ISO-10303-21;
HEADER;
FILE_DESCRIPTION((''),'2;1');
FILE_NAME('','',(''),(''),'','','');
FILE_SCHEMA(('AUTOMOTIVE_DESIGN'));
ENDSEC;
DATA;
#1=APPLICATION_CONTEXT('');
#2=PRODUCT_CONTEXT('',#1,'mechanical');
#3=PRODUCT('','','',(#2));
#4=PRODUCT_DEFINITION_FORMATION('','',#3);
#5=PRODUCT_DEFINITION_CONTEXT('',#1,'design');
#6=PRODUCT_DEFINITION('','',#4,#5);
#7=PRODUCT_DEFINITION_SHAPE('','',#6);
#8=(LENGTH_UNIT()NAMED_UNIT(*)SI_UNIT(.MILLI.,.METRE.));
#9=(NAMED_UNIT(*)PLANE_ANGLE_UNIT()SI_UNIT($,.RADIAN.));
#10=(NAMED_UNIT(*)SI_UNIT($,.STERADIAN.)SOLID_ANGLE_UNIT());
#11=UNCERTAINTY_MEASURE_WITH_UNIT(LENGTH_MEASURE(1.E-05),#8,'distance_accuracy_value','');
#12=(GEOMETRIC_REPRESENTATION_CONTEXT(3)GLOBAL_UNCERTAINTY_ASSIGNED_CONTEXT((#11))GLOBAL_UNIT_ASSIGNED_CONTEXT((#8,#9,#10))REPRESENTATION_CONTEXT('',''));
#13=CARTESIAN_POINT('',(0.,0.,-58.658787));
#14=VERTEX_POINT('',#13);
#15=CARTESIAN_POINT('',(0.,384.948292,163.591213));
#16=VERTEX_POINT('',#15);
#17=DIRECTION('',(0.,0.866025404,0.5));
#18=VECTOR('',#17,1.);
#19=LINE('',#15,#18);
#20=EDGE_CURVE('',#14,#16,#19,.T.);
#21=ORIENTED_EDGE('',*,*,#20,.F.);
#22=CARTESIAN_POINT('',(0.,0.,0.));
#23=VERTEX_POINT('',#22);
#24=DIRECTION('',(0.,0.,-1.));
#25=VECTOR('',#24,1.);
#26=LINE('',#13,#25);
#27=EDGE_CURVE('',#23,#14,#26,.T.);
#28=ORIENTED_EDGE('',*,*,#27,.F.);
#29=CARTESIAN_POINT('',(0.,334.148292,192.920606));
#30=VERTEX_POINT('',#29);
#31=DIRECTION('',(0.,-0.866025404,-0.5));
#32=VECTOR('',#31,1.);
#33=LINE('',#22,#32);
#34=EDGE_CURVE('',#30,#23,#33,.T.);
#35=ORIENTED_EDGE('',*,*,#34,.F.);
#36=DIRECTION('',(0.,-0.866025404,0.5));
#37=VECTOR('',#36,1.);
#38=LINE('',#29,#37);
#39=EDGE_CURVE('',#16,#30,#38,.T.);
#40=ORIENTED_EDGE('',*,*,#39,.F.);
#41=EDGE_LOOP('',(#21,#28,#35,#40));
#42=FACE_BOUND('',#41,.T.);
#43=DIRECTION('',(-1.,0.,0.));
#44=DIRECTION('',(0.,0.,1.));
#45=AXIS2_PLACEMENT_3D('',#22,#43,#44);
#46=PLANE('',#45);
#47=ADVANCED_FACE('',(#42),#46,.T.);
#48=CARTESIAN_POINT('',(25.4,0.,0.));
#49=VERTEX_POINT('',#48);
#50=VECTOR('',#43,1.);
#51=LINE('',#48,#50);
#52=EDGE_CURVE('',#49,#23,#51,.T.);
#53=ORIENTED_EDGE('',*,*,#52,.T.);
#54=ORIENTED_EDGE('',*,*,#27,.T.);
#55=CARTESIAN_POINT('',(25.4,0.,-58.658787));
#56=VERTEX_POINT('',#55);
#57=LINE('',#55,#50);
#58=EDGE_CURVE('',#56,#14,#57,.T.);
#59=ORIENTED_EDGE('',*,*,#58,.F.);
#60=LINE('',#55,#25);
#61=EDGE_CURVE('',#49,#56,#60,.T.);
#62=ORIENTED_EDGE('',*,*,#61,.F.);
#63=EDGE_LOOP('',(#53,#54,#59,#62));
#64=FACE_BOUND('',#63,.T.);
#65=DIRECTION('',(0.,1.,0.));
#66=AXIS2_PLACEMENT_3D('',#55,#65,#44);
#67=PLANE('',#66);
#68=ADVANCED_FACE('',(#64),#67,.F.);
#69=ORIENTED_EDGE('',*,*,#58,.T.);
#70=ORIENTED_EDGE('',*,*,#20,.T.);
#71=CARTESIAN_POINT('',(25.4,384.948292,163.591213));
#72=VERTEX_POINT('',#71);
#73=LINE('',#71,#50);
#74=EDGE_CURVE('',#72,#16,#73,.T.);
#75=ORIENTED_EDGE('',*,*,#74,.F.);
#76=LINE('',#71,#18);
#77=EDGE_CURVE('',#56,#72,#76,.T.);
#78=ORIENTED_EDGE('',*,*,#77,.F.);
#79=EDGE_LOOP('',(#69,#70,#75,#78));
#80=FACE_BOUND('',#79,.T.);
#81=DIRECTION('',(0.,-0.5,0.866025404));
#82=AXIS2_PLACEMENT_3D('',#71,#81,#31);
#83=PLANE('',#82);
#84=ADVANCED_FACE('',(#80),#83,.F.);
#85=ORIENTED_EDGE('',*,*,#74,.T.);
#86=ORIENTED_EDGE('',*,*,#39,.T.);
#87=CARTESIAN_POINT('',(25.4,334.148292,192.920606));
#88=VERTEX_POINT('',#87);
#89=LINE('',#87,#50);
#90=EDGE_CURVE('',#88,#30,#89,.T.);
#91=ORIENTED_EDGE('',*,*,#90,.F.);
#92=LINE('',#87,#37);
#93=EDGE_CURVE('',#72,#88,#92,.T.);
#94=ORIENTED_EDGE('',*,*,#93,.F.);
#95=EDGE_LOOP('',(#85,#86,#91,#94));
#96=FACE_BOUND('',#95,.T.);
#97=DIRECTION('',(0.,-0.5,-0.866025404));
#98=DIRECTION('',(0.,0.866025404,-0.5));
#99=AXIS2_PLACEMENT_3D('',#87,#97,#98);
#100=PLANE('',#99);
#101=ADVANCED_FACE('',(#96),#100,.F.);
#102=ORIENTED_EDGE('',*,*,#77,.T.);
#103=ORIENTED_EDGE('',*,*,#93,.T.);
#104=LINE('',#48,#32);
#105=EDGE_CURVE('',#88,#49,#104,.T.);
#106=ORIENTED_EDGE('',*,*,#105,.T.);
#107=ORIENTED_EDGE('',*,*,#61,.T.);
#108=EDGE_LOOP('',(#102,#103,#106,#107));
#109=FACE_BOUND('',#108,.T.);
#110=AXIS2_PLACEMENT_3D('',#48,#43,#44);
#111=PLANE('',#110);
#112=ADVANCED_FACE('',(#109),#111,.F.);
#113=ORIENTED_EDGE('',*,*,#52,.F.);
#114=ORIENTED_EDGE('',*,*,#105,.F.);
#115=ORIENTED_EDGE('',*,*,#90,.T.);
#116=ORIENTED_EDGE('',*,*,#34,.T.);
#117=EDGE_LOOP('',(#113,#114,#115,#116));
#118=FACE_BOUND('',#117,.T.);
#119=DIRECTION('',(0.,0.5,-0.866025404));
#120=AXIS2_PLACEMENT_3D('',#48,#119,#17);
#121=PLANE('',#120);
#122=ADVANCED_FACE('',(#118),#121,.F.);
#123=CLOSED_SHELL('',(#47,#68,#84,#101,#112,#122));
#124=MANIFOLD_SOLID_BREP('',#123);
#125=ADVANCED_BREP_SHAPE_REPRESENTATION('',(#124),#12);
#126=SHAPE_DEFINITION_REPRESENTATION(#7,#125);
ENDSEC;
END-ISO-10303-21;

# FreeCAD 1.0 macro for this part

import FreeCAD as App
import Part
import Sketcher
from FreeCAD import Vector
Q = App.Units.Quantity

doc = App.newDocument("Part")
body = doc.addObject("PartDesign::Body", "Body")

# Sketch on YZ plane
sketch1 = doc.addObject("Sketcher::SketchObject", "Sketch")
body.addObject(sketch1)
sketch1.AttachmentSupport = (doc.YZ_Plane, [""])
sketch1.MapMode = "FlatFace"
sketch1.addGeometry([
    Part.LineSegment(Vector(334, 193, 0), Vector(0, 0, 0)),
    Part.LineSegment(Vector(0, 0, 0), Vector(0, -59, 0)),
    Part.LineSegment(Vector(0, -59, 0), Vector(385, 164, 0)),
    Part.LineSegment(Vector(385, 164, 0), Vector(334, 193, 0)),
], False)
sketch1.addConstraint([
    Sketcher.Constraint("Coincident", 0, 2, 1, 1),
    Sketcher.Constraint("Coincident", 1, 2, 2, 1),
    Sketcher.Constraint("Coincident", 2, 2, 3, 1),
    Sketcher.Constraint("Coincident", 3, 2, 0, 1),
    Sketcher.Constraint("Vertical", 1),
    Sketcher.Constraint("Coincident", 0, 2, -1, 1),
    Sketcher.Constraint("Parallel", 0, 2),
    Sketcher.Constraint("Angle", 0, Q("-150 deg")),
    Sketcher.Constraint("Angle", 3, Q("150 deg")),
    Sketcher.Constraint("DistanceX", 3, 2, 2, 2, Q("2 in")),
    Sketcher.Constraint("Distance", 2, Q("17.5 in")),
])
pad1 = doc.addObject("PartDesign::Pad", "Pad")
body.addObject(pad1)
pad1.Profile = sketch1
pad1.Length = Q("1 in")

doc.recompute()
